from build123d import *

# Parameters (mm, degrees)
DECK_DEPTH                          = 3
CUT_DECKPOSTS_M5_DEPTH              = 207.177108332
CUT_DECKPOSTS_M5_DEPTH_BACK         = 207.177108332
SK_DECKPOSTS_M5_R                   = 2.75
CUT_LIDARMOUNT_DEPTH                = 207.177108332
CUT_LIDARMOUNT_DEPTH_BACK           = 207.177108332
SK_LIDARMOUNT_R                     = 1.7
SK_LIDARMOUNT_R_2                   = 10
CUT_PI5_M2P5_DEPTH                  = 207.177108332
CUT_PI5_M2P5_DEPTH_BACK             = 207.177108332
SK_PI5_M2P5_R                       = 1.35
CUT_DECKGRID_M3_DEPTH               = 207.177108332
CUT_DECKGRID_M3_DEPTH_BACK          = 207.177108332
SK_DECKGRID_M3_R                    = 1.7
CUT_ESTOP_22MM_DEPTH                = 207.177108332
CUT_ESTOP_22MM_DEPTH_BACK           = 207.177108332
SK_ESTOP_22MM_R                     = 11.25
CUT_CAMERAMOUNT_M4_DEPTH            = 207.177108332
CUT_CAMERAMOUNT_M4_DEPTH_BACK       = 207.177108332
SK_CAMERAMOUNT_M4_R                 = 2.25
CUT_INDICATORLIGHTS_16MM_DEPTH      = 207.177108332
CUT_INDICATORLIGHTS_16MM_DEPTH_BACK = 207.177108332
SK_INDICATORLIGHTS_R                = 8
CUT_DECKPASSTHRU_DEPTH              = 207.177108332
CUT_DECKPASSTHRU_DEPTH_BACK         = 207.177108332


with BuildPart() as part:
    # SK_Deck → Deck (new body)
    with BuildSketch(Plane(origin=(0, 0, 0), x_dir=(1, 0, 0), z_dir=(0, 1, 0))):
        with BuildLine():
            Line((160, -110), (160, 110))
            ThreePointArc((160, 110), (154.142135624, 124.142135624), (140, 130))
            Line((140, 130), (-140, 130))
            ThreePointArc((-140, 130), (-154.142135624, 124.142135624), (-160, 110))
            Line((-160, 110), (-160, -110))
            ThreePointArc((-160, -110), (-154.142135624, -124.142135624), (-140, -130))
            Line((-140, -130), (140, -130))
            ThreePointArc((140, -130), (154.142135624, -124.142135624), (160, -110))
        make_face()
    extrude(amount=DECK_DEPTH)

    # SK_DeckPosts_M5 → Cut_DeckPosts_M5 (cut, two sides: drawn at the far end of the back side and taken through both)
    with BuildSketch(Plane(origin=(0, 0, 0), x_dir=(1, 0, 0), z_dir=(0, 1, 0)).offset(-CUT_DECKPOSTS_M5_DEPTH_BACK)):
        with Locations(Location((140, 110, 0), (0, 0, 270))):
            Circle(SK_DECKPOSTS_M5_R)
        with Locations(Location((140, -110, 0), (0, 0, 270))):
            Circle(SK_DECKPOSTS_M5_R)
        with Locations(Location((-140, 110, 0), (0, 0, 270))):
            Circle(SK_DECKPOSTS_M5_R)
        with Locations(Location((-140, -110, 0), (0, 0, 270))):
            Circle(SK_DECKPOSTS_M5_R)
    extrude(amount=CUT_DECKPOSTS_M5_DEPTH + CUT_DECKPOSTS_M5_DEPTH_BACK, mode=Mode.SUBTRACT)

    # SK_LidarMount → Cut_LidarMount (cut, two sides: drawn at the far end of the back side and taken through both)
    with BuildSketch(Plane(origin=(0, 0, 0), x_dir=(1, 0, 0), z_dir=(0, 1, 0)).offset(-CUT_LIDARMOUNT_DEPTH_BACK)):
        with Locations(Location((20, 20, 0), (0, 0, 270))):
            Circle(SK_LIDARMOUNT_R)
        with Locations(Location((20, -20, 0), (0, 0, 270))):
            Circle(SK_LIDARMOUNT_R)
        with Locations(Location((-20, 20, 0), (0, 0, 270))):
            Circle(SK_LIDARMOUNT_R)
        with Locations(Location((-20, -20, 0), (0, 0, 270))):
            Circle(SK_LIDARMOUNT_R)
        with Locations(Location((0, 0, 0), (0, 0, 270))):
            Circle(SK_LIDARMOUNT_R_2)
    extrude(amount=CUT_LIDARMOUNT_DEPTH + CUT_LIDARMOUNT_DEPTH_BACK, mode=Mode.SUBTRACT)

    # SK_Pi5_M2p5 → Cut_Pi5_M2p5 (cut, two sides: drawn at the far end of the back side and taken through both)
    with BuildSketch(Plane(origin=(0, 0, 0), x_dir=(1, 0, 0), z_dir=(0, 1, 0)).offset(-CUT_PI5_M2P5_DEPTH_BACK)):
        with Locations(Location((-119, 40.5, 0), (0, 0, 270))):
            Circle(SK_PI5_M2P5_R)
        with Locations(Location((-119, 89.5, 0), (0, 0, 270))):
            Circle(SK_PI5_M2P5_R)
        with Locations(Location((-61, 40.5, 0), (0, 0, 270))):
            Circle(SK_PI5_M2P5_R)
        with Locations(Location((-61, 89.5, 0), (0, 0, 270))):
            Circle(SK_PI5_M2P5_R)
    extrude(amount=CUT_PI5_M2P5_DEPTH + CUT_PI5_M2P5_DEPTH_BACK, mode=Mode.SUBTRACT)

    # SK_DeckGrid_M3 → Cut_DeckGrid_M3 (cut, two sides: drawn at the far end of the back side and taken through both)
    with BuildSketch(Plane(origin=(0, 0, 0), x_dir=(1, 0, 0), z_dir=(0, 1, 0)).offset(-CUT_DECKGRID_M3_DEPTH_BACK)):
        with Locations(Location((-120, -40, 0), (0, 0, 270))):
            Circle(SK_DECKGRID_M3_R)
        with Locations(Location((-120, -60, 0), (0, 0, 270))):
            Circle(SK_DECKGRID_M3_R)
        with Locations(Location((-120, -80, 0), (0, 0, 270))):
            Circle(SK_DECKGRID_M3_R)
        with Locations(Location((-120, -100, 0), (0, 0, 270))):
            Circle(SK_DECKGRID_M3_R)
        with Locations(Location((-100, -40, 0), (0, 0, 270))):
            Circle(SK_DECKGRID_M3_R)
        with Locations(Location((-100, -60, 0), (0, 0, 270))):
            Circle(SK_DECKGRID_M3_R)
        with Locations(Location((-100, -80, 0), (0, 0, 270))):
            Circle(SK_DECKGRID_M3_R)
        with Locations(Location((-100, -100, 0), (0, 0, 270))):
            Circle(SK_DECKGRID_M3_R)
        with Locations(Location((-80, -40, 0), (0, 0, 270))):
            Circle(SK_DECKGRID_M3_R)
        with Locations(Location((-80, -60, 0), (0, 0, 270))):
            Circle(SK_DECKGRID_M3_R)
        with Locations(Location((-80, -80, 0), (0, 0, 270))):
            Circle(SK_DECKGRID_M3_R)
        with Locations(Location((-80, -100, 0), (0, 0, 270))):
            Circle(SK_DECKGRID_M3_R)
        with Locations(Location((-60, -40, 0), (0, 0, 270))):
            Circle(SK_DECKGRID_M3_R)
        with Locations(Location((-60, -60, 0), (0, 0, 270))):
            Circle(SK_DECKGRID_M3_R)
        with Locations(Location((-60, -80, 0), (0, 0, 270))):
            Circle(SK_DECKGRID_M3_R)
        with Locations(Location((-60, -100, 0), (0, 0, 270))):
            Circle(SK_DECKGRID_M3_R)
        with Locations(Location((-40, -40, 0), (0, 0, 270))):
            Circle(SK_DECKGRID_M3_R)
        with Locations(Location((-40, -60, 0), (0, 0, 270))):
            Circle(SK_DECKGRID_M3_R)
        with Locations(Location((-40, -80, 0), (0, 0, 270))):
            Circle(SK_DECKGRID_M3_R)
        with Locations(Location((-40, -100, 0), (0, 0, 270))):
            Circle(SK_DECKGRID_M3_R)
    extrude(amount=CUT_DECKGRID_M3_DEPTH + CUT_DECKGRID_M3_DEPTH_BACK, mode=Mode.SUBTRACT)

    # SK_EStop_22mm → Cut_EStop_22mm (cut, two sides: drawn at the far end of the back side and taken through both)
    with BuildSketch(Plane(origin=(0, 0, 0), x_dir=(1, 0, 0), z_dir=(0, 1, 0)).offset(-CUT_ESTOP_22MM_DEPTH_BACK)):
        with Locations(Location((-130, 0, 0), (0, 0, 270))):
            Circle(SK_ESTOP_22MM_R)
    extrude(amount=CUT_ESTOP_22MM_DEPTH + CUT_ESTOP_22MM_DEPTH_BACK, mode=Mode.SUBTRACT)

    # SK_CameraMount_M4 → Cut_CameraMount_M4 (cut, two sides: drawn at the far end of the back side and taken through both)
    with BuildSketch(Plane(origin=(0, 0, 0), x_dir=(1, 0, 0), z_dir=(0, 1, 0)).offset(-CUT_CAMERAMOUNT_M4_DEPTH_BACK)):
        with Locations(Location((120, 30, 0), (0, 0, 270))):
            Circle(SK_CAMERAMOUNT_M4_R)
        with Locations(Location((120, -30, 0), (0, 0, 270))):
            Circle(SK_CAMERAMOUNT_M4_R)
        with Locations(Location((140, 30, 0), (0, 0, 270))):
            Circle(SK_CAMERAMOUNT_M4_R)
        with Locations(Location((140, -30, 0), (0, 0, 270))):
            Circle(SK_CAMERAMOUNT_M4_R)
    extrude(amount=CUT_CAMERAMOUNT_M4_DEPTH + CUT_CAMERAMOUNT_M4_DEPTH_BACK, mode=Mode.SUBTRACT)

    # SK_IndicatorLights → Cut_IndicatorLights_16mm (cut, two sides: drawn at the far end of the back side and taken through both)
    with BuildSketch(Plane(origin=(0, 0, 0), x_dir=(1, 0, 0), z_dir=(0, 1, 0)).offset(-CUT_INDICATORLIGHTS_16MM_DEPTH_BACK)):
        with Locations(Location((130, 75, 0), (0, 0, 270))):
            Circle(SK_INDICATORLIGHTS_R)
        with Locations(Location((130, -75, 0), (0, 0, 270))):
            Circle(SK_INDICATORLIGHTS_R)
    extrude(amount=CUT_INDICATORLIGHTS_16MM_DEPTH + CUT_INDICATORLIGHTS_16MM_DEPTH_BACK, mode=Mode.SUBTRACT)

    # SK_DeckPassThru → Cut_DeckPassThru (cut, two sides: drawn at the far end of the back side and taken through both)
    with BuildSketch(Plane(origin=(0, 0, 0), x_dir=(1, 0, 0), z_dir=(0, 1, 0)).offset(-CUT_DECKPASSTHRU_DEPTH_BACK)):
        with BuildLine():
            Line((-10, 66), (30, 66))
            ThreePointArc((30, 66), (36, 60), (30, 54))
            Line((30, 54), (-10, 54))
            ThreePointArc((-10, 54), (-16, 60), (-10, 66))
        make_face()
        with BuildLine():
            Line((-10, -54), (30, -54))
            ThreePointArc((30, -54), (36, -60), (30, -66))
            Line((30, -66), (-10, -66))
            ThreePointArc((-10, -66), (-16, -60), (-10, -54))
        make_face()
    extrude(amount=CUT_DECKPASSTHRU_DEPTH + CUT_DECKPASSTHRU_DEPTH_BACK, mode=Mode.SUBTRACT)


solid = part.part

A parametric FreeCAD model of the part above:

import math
import FreeCAD as App
import Part
import Sketcher
from FreeCAD import Vector
Q = App.Units.Quantity

doc = App.newDocument("Part")
body = doc.addObject("PartDesign::Body", "Body")

# Sketch on XZ plane
sketch1 = doc.addObject("Sketcher::SketchObject", "Sketch")
body.addObject(sketch1)
sketch1.AttachmentSupport = (doc.XZ_Plane, [""])
sketch1.MapMode = "FlatFace"
sketch1.addGeometry([
    Part.LineSegment(Vector(160, 110, 0), Vector(160, -110, 0)),  # 0
    Part.ArcOfCircle(Part.Circle(Vector(140, -110, 0), Vector(0, 0, 1), 20), math.radians(-90), math.radians(0)),  # 1
    Part.LineSegment(Vector(140, -130, 0), Vector(-140, -130, 0)),  # 2
    Part.ArcOfCircle(Part.Circle(Vector(-140, -110, 0), Vector(0, 0, 1), 20), math.radians(180), math.radians(270)),  # 3
    Part.LineSegment(Vector(-160, -110, 0), Vector(-160, 110, 0)),  # 4
    Part.ArcOfCircle(Part.Circle(Vector(-140, 110, 0), Vector(0, 0, 1), 20), math.radians(90), math.radians(180)),  # 5
    Part.LineSegment(Vector(-140, 130, 0), Vector(140, 130, 0)),  # 6
    Part.ArcOfCircle(Part.Circle(Vector(140, 110, 0), Vector(0, 0, 1), 20), math.radians(0), math.radians(90)),  # 7
], False)
sketch1.addConstraint([
    Sketcher.Constraint("Tangent", 0, 2, 1, 2),
    Sketcher.Constraint("Tangent", 1, 1, 2, 1),
    Sketcher.Constraint("Tangent", 2, 2, 3, 2),
    Sketcher.Constraint("Tangent", 3, 1, 4, 1),
    Sketcher.Constraint("Tangent", 4, 2, 5, 2),
    Sketcher.Constraint("Tangent", 5, 1, 6, 1),
    Sketcher.Constraint("Tangent", 6, 2, 7, 2),
    Sketcher.Constraint("Tangent", 7, 1, 0, 1),
    Sketcher.Constraint("Vertical", 0),
    Sketcher.Constraint("Horizontal", 2),
    Sketcher.Constraint("Vertical", 4),
    Sketcher.Constraint("Horizontal", 6),
    Sketcher.Constraint("Equal", 1, 3),
    Sketcher.Constraint("Equal", 3, 5),
    Sketcher.Constraint("Equal", 5, 7),
    Sketcher.Constraint("Symmetric", 1, 3, 5, 3, -1, 1),
    Sketcher.Constraint("Radius", 1, Q("20 mm")),
    Sketcher.Constraint("DistanceX", 2, 2, 2, 1, Q("280 mm")),
    Sketcher.Constraint("DistanceY", 0, 2, 0, 1, Q("220 mm")),
])
pad1 = doc.addObject("PartDesign::Pad", "Pad")
body.addObject(pad1)
pad1.Profile = sketch1
pad1.Length = 3
pad1.Reversed = True

# Sketch on XZ plane
sketch2 = doc.addObject("Sketcher::SketchObject", "Sketch001")
body.addObject(sketch2)
sketch2.AttachmentSupport = (doc.XZ_Plane, [""])
sketch2.MapMode = "FlatFace"
sketch2.addGeometry([
    Part.Circle(Vector(140, -110, 0), Vector(0, 0, 1), 2.8),
    Part.Circle(Vector(140, 110, 0), Vector(0, 0, 1), 2.8),
    Part.Circle(Vector(-140, -110, 0), Vector(0, 0, 1), 2.8),
    Part.Circle(Vector(-140, 110, 0), Vector(0, 0, 1), 2.8),
], False)
sketch2.addConstraint([
    Sketcher.Constraint("Equal", 0, 1),
    Sketcher.Constraint("Equal", 1, 2),
    Sketcher.Constraint("Equal", 2, 3),
    Sketcher.Constraint("Symmetric", 1, 3, 2, 3, -1, 1),
    Sketcher.Constraint("Symmetric", 0, 3, 3, 3, -1, 1),
    Sketcher.Constraint("Symmetric", 0, 3, 2, 3, -2),
    Sketcher.Constraint("Diameter", 0, Q("5.5 mm")),
    Sketcher.Constraint("DistanceX", -1, 1, 0, 3, Q("140 mm")),
    Sketcher.Constraint("DistanceY", 0, 3, -1, 1, Q("110 mm")),
])
pocket1 = doc.addObject("PartDesign::Pocket", "Pocket")
body.addObject(pocket1)
pocket1.Profile = sketch2
pocket1.Type = "ThroughAll"
pocket1.Midplane = True

# Sketch on XZ plane
sketch3 = doc.addObject("Sketcher::SketchObject", "Sketch002")
body.addObject(sketch3)
sketch3.AttachmentSupport = (doc.XZ_Plane, [""])
sketch3.MapMode = "FlatFace"
sketch3.addGeometry([
    Part.Circle(Vector(20, -20, 0), Vector(0, 0, 1), 1.7),  # 0
    Part.Circle(Vector(20, 20, 0), Vector(0, 0, 1), 1.7),  # 1
    Part.Circle(Vector(-20, -20, 0), Vector(0, 0, 1), 1.7),  # 2
    Part.Circle(Vector(-20, 20, 0), Vector(0, 0, 1), 1.7),  # 3
    Part.Circle(Vector(0, 0, 0), Vector(0, 0, 1), 10),  # 4
], False)
sketch3.addConstraint([
    Sketcher.Constraint("Coincident", 4, 3, -1, 1),
    Sketcher.Constraint("Equal", 0, 1),
    Sketcher.Constraint("Equal", 1, 2),
    Sketcher.Constraint("Equal", 2, 3),
    Sketcher.Constraint("Symmetric", 1, 3, 2, 3, -1, 1),
    Sketcher.Constraint("Symmetric", 0, 3, 3, 3, -1, 1),
    Sketcher.Constraint("Symmetric", 0, 3, 2, 3, -2),
    Sketcher.Constraint("Diameter", 4, Q("20 mm")),
    Sketcher.Constraint("Diameter", 0, Q("3.4 mm")),
    Sketcher.Constraint("DistanceX", -1, 1, 0, 3, Q("20 mm")),
    Sketcher.Constraint("DistanceY", 0, 3, -1, 1, Q("20 mm")),
])
pocket2 = doc.addObject("PartDesign::Pocket", "Pocket001")
body.addObject(pocket2)
pocket2.Profile = sketch3
pocket2.Type = "ThroughAll"
pocket2.Midplane = True

# Sketch on XZ plane
sketch4 = doc.addObject("Sketcher::SketchObject", "Sketch003")
body.addObject(sketch4)
sketch4.AttachmentSupport = (doc.XZ_Plane, [""])
sketch4.MapMode = "FlatFace"
sketch4.addGeometry([
    Part.Circle(Vector(-119, -40.5, 0), Vector(0, 0, 1), 1.4),
    Part.Circle(Vector(-119, -89.5, 0), Vector(0, 0, 1), 1.4),
    Part.Circle(Vector(-61, -40.5, 0), Vector(0, 0, 1), 1.4),
    Part.Circle(Vector(-61, -89.5, 0), Vector(0, 0, 1), 1.4),
], False)
sketch4.addConstraint([
    Sketcher.Constraint("Equal", 0, 1),
    Sketcher.Constraint("Equal", 1, 2),
    Sketcher.Constraint("Equal", 2, 3),
    Sketcher.Constraint("Horizontal", 0, 3, 2, 3),
    Sketcher.Constraint("Horizontal", 1, 3, 3, 3),
    Sketcher.Constraint("Vertical", 0, 3, 1, 3),
    Sketcher.Constraint("Vertical", 2, 3, 3, 3),
    Sketcher.Constraint("Diameter", 0, Q("2.7 mm")),
    Sketcher.Constraint("DistanceX", 0, 3, -1, 1, Q("119 mm")),
    Sketcher.Constraint("DistanceX", 2, 3, -1, 1, Q("61 mm")),
    Sketcher.Constraint("DistanceY", 1, 3, 0, 3, Q("49 mm")),
    Sketcher.Constraint("DistanceY", 0, 3, -1, 1, Q("40.5 mm")),
])
pocket3 = doc.addObject("PartDesign::Pocket", "Pocket002")
body.addObject(pocket3)
pocket3.Profile = sketch4
pocket3.Type = "ThroughAll"
pocket3.Midplane = True

# Sketch on XZ plane
sketch5 = doc.addObject("Sketcher::SketchObject", "Sketch004")
body.addObject(sketch5)
sketch5.AttachmentSupport = (doc.XZ_Plane, [""])
sketch5.MapMode = "FlatFace"
sketch5.addGeometry([
    Part.Circle(Vector(-120, 40, 0), Vector(0, 0, 1), 1.7),  # 0
    Part.Circle(Vector(-120, 60, 0), Vector(0, 0, 1), 1.7),  # 1
    Part.Circle(Vector(-120, 80, 0), Vector(0, 0, 1), 1.7),  # 2
    Part.Circle(Vector(-120, 100, 0), Vector(0, 0, 1), 1.7),  # 3
    Part.Circle(Vector(-100, 40, 0), Vector(0, 0, 1), 1.7),  # 4
    Part.Circle(Vector(-100, 60, 0), Vector(0, 0, 1), 1.7),  # 5
    Part.Circle(Vector(-100, 80, 0), Vector(0, 0, 1), 1.7),  # 6
    Part.Circle(Vector(-100, 100, 0), Vector(0, 0, 1), 1.7),  # 7
    Part.Circle(Vector(-80, 40, 0), Vector(0, 0, 1), 1.7),  # 8
    Part.Circle(Vector(-80, 60, 0), Vector(0, 0, 1), 1.7),  # 9
    Part.Circle(Vector(-80, 80, 0), Vector(0, 0, 1), 1.7),  # 10
    Part.Circle(Vector(-80, 100, 0), Vector(0, 0, 1), 1.7),  # 11
    Part.Circle(Vector(-60, 40, 0), Vector(0, 0, 1), 1.7),  # 12
    Part.Circle(Vector(-60, 60, 0), Vector(0, 0, 1), 1.7),  # 13
    Part.Circle(Vector(-60, 80, 0), Vector(0, 0, 1), 1.7),  # 14
    Part.Circle(Vector(-60, 100, 0), Vector(0, 0, 1), 1.7),  # 15
    Part.Circle(Vector(-40, 40, 0), Vector(0, 0, 1), 1.7),  # 16
    Part.Circle(Vector(-40, 60, 0), Vector(0, 0, 1), 1.7),  # 17
    Part.Circle(Vector(-40, 80, 0), Vector(0, 0, 1), 1.7),  # 18
    Part.Circle(Vector(-40, 100, 0), Vector(0, 0, 1), 1.7),  # 19
], False)
sketch5.addConstraint([
    Sketcher.Constraint("Equal", 0, 1),
    Sketcher.Constraint("Equal", 1, 2),
    Sketcher.Constraint("Equal", 2, 3),
    Sketcher.Constraint("Equal", 3, 4),
    Sketcher.Constraint("Equal", 4, 5),
    Sketcher.Constraint("Equal", 5, 6),
    Sketcher.Constraint("Equal", 6, 7),
    Sketcher.Constraint("Equal", 7, 8),
    Sketcher.Constraint("Equal", 8, 9),
    Sketcher.Constraint("Equal", 9, 10),
    Sketcher.Constraint("Equal", 10, 11),
    Sketcher.Constraint("Equal", 11, 12),
    Sketcher.Constraint("Equal", 12, 13),
    Sketcher.Constraint("Equal", 13, 14),
    Sketcher.Constraint("Equal", 14, 15),
    Sketcher.Constraint("Equal", 15, 16),
    Sketcher.Constraint("Equal", 16, 17),
    Sketcher.Constraint("Equal", 17, 18),
    Sketcher.Constraint("Equal", 18, 19),
    Sketcher.Constraint("Horizontal", 0, 3, 4, 3),
    Sketcher.Constraint("Horizontal", 1, 3, 5, 3),
    Sketcher.Constraint("Horizontal", 2, 3, 6, 3),
    Sketcher.Constraint("Horizontal", 3, 3, 7, 3),
    Sketcher.Constraint("Horizontal", 4, 3, 8, 3),
    Sketcher.Constraint("Horizontal", 5, 3, 9, 3),
    Sketcher.Constraint("Horizontal", 6, 3, 10, 3),
    Sketcher.Constraint("Horizontal", 7, 3, 11, 3),
    Sketcher.Constraint("Horizontal", 8, 3, 12, 3),
    Sketcher.Constraint("Horizontal", 9, 3, 13, 3),
    Sketcher.Constraint("Horizontal", 10, 3, 14, 3),
    Sketcher.Constraint("Horizontal", 11, 3, 15, 3),
    Sketcher.Constraint("Horizontal", 12, 3, 16, 3),
    Sketcher.Constraint("Horizontal", 13, 3, 17, 3),
    Sketcher.Constraint("Horizontal", 14, 3, 18, 3),
    Sketcher.Constraint("Horizontal", 15, 3, 19, 3),
    Sketcher.Constraint("Vertical", 0, 3, 1, 3),
    Sketcher.Constraint("Vertical", 1, 3, 2, 3),
    Sketcher.Constraint("Vertical", 2, 3, 3, 3),
    Sketcher.Constraint("Vertical", 4, 3, 5, 3),
    Sketcher.Constraint("Vertical", 5, 3, 6, 3),
    Sketcher.Constraint("Vertical", 6, 3, 7, 3),
    Sketcher.Constraint("Vertical", 8, 3, 9, 3),
    Sketcher.Constraint("Vertical", 9, 3, 10, 3),
    Sketcher.Constraint("Vertical", 10, 3, 11, 3),
    Sketcher.Constraint("Vertical", 12, 3, 13, 3),
    Sketcher.Constraint("Vertical", 13, 3, 14, 3),
    Sketcher.Constraint("Vertical", 14, 3, 15, 3),
    Sketcher.Constraint("Vertical", 16, 3, 17, 3),
    Sketcher.Constraint("Vertical", 17, 3, 18, 3),
    Sketcher.Constraint("Vertical", 18, 3, 19, 3),
    Sketcher.Constraint("Diameter", 0, Q("3.4 mm")),
    Sketcher.Constraint("DistanceX", 0, 3, -1, 1, Q("120 mm")),
    Sketcher.Constraint("DistanceY", -1, 1, 0, 3, Q("40 mm")),
    Sketcher.Constraint("DistanceY", -1, 1, 1, 3, Q("60 mm")),
    Sketcher.Constraint("DistanceY", -1, 1, 2, 3, Q("80 mm")),
    Sketcher.Constraint("DistanceY", -1, 1, 3, 3, Q("100 mm")),
    Sketcher.Constraint("DistanceX", 4, 3, -1, 1, Q("100 mm")),
    Sketcher.Constraint("DistanceX", 8, 3, -1, 1, Q("80 mm")),
    Sketcher.Constraint("DistanceX", 12, 3, -1, 1, Q("60 mm")),
    Sketcher.Constraint("DistanceX", 16, 3, -1, 1, Q("40 mm")),
])
pocket4 = doc.addObject("PartDesign::Pocket", "Pocket003")
body.addObject(pocket4)
pocket4.Profile = sketch5
pocket4.Type = "ThroughAll"
pocket4.Midplane = True

# Sketch on XZ plane
sketch6 = doc.addObject("Sketcher::SketchObject", "Sketch005")
body.addObject(sketch6)
sketch6.AttachmentSupport = (doc.XZ_Plane, [""])
sketch6.MapMode = "FlatFace"
sketch6.addGeometry(Part.Circle(Vector(-130, 0, 0), Vector(0, 0, 1), 11), False)
sketch6.addConstraint([
    Sketcher.Constraint("PointOnObject", 0, 3, -1),
    Sketcher.Constraint("Diameter", 0, Q("22.5 mm")),
    Sketcher.Constraint("DistanceX", 0, 3, -1, 1, Q("130 mm")),
])
pocket5 = doc.addObject("PartDesign::Pocket", "Pocket004")
body.addObject(pocket5)
pocket5.Profile = sketch6
pocket5.Type = "ThroughAll"
pocket5.Midplane = True

# Sketch on XZ plane
sketch7 = doc.addObject("Sketcher::SketchObject", "Sketch006")
body.addObject(sketch7)
sketch7.AttachmentSupport = (doc.XZ_Plane, [""])
sketch7.MapMode = "FlatFace"
sketch7.addGeometry([
    Part.Circle(Vector(120, -30, 0), Vector(0, 0, 1), 2.2),
    Part.Circle(Vector(120, 30, 0), Vector(0, 0, 1), 2.2),
    Part.Circle(Vector(140, -30, 0), Vector(0, 0, 1), 2.2),
    Part.Circle(Vector(140, 30, 0), Vector(0, 0, 1), 2.2),
], False)
sketch7.addConstraint([
    Sketcher.Constraint("Equal", 0, 1),
    Sketcher.Constraint("Equal", 1, 2),
    Sketcher.Constraint("Equal", 2, 3),
    Sketcher.Constraint("Symmetric", 0, 3, 1, 3, -1),
    Sketcher.Constraint("Symmetric", 2, 3, 3, 3, -1),
    Sketcher.Constraint("Horizontal", 0, 3, 2, 3),
    Sketcher.Constraint("Diameter", 0, Q("4.5 mm")),
    Sketcher.Constraint("DistanceX", -1, 1, 0, 3, Q("120 mm")),
    Sketcher.Constraint("DistanceY", 0, 3, -1, 1, Q("30 mm")),
    Sketcher.Constraint("DistanceX", -1, 1, 2, 3, Q("140 mm")),
])
pocket6 = doc.addObject("PartDesign::Pocket", "Pocket005")
body.addObject(pocket6)
pocket6.Profile = sketch7
pocket6.Type = "ThroughAll"
pocket6.Midplane = True

# Sketch on XZ plane
sketch8 = doc.addObject("Sketcher::SketchObject", "Sketch007")
body.addObject(sketch8)
sketch8.AttachmentSupport = (doc.XZ_Plane, [""])
sketch8.MapMode = "FlatFace"
sketch8.addGeometry([
    Part.Circle(Vector(130, -75, 0), Vector(0, 0, 1), 8),
    Part.Circle(Vector(130, 75, 0), Vector(0, 0, 1), 8),
], False)
sketch8.addConstraint([
    Sketcher.Constraint("Equal", 0, 1),
    Sketcher.Constraint("Symmetric", 0, 3, 1, 3, -1),
    Sketcher.Constraint("Diameter", 0, Q("16 mm")),
    Sketcher.Constraint("DistanceX", -1, 1, 0, 3, Q("130 mm")),
    Sketcher.Constraint("DistanceY", 0, 3, -1, 1, Q("75 mm")),
])
pocket7 = doc.addObject("PartDesign::Pocket", "Pocket006")
body.addObject(pocket7)
pocket7.Profile = sketch8
pocket7.Type = "ThroughAll"
pocket7.Midplane = True

# Sketch on XZ plane
sketch9 = doc.addObject("Sketcher::SketchObject", "Sketch008")
body.addObject(sketch9)
sketch9.AttachmentSupport = (doc.XZ_Plane, [""])
sketch9.MapMode = "FlatFace"
sketch9.addGeometry([
    Part.LineSegment(Vector(30, -66, 0), Vector(-10, -66, 0)),  # 0
    Part.ArcOfCircle(Part.Circle(Vector(-10, -60, 0), Vector(0, 0, 1), 6), math.radians(90), math.radians(270)),  # 1
    Part.LineSegment(Vector(-10, -54, 0), Vector(30, -54, 0)),  # 2
    Part.ArcOfCircle(Part.Circle(Vector(30, -60, 0), Vector(0, 0, 1), 6), math.radians(-90), math.radians(90)),  # 3
    Part.LineSegment(Vector(30, 54, 0), Vector(-10, 54, 0)),  # 4
    Part.ArcOfCircle(Part.Circle(Vector(-10, 60, 0), Vector(0, 0, 1), 6), math.radians(90), math.radians(270)),  # 5
    Part.LineSegment(Vector(-10, 66, 0), Vector(30, 66, 0)),  # 6
    Part.ArcOfCircle(Part.Circle(Vector(30, 60, 0), Vector(0, 0, 1), 6), math.radians(-90), math.radians(90)),  # 7
], False)
sketch9.addConstraint([
    Sketcher.Constraint("Tangent", 0, 2, 1, 2),
    Sketcher.Constraint("Tangent", 1, 1, 2, 1),
    Sketcher.Constraint("Tangent", 2, 2, 3, 2),
    Sketcher.Constraint("Tangent", 3, 1, 0, 1),
    Sketcher.Constraint("Tangent", 4, 2, 5, 2),
    Sketcher.Constraint("Tangent", 5, 1, 6, 1),
    Sketcher.Constraint("Tangent", 6, 2, 7, 2),
    Sketcher.Constraint("Tangent", 7, 1, 4, 1),
    Sketcher.Constraint("Horizontal", 0),
    Sketcher.Constraint("Horizontal", 2),
    Sketcher.Constraint("Horizontal", 4),
    Sketcher.Constraint("Horizontal", 6),
    Sketcher.Constraint("Equal", 3, 5),
    Sketcher.Constraint("Symmetric", 1, 3, 5, 3, -1),
    Sketcher.Constraint("Vertical", 3, 3, 7, 3),
    Sketcher.Constraint("Radius", 1, Q("6 mm")),
    Sketcher.Constraint("DistanceX", 0, 2, 0, 1, Q("40 mm")),
    Sketcher.Constraint("DistanceX", 1, 3, -1, 1, Q("10 mm")),
    Sketcher.Constraint("DistanceY", 1, 3, -1, 1, Q("60 mm")),
])
pocket8 = doc.addObject("PartDesign::Pocket", "Pocket007")
body.addObject(pocket8)
pocket8.Profile = sketch9
pocket8.Type = "ThroughAll"
pocket8.Midplane = True

doc.recompute()
